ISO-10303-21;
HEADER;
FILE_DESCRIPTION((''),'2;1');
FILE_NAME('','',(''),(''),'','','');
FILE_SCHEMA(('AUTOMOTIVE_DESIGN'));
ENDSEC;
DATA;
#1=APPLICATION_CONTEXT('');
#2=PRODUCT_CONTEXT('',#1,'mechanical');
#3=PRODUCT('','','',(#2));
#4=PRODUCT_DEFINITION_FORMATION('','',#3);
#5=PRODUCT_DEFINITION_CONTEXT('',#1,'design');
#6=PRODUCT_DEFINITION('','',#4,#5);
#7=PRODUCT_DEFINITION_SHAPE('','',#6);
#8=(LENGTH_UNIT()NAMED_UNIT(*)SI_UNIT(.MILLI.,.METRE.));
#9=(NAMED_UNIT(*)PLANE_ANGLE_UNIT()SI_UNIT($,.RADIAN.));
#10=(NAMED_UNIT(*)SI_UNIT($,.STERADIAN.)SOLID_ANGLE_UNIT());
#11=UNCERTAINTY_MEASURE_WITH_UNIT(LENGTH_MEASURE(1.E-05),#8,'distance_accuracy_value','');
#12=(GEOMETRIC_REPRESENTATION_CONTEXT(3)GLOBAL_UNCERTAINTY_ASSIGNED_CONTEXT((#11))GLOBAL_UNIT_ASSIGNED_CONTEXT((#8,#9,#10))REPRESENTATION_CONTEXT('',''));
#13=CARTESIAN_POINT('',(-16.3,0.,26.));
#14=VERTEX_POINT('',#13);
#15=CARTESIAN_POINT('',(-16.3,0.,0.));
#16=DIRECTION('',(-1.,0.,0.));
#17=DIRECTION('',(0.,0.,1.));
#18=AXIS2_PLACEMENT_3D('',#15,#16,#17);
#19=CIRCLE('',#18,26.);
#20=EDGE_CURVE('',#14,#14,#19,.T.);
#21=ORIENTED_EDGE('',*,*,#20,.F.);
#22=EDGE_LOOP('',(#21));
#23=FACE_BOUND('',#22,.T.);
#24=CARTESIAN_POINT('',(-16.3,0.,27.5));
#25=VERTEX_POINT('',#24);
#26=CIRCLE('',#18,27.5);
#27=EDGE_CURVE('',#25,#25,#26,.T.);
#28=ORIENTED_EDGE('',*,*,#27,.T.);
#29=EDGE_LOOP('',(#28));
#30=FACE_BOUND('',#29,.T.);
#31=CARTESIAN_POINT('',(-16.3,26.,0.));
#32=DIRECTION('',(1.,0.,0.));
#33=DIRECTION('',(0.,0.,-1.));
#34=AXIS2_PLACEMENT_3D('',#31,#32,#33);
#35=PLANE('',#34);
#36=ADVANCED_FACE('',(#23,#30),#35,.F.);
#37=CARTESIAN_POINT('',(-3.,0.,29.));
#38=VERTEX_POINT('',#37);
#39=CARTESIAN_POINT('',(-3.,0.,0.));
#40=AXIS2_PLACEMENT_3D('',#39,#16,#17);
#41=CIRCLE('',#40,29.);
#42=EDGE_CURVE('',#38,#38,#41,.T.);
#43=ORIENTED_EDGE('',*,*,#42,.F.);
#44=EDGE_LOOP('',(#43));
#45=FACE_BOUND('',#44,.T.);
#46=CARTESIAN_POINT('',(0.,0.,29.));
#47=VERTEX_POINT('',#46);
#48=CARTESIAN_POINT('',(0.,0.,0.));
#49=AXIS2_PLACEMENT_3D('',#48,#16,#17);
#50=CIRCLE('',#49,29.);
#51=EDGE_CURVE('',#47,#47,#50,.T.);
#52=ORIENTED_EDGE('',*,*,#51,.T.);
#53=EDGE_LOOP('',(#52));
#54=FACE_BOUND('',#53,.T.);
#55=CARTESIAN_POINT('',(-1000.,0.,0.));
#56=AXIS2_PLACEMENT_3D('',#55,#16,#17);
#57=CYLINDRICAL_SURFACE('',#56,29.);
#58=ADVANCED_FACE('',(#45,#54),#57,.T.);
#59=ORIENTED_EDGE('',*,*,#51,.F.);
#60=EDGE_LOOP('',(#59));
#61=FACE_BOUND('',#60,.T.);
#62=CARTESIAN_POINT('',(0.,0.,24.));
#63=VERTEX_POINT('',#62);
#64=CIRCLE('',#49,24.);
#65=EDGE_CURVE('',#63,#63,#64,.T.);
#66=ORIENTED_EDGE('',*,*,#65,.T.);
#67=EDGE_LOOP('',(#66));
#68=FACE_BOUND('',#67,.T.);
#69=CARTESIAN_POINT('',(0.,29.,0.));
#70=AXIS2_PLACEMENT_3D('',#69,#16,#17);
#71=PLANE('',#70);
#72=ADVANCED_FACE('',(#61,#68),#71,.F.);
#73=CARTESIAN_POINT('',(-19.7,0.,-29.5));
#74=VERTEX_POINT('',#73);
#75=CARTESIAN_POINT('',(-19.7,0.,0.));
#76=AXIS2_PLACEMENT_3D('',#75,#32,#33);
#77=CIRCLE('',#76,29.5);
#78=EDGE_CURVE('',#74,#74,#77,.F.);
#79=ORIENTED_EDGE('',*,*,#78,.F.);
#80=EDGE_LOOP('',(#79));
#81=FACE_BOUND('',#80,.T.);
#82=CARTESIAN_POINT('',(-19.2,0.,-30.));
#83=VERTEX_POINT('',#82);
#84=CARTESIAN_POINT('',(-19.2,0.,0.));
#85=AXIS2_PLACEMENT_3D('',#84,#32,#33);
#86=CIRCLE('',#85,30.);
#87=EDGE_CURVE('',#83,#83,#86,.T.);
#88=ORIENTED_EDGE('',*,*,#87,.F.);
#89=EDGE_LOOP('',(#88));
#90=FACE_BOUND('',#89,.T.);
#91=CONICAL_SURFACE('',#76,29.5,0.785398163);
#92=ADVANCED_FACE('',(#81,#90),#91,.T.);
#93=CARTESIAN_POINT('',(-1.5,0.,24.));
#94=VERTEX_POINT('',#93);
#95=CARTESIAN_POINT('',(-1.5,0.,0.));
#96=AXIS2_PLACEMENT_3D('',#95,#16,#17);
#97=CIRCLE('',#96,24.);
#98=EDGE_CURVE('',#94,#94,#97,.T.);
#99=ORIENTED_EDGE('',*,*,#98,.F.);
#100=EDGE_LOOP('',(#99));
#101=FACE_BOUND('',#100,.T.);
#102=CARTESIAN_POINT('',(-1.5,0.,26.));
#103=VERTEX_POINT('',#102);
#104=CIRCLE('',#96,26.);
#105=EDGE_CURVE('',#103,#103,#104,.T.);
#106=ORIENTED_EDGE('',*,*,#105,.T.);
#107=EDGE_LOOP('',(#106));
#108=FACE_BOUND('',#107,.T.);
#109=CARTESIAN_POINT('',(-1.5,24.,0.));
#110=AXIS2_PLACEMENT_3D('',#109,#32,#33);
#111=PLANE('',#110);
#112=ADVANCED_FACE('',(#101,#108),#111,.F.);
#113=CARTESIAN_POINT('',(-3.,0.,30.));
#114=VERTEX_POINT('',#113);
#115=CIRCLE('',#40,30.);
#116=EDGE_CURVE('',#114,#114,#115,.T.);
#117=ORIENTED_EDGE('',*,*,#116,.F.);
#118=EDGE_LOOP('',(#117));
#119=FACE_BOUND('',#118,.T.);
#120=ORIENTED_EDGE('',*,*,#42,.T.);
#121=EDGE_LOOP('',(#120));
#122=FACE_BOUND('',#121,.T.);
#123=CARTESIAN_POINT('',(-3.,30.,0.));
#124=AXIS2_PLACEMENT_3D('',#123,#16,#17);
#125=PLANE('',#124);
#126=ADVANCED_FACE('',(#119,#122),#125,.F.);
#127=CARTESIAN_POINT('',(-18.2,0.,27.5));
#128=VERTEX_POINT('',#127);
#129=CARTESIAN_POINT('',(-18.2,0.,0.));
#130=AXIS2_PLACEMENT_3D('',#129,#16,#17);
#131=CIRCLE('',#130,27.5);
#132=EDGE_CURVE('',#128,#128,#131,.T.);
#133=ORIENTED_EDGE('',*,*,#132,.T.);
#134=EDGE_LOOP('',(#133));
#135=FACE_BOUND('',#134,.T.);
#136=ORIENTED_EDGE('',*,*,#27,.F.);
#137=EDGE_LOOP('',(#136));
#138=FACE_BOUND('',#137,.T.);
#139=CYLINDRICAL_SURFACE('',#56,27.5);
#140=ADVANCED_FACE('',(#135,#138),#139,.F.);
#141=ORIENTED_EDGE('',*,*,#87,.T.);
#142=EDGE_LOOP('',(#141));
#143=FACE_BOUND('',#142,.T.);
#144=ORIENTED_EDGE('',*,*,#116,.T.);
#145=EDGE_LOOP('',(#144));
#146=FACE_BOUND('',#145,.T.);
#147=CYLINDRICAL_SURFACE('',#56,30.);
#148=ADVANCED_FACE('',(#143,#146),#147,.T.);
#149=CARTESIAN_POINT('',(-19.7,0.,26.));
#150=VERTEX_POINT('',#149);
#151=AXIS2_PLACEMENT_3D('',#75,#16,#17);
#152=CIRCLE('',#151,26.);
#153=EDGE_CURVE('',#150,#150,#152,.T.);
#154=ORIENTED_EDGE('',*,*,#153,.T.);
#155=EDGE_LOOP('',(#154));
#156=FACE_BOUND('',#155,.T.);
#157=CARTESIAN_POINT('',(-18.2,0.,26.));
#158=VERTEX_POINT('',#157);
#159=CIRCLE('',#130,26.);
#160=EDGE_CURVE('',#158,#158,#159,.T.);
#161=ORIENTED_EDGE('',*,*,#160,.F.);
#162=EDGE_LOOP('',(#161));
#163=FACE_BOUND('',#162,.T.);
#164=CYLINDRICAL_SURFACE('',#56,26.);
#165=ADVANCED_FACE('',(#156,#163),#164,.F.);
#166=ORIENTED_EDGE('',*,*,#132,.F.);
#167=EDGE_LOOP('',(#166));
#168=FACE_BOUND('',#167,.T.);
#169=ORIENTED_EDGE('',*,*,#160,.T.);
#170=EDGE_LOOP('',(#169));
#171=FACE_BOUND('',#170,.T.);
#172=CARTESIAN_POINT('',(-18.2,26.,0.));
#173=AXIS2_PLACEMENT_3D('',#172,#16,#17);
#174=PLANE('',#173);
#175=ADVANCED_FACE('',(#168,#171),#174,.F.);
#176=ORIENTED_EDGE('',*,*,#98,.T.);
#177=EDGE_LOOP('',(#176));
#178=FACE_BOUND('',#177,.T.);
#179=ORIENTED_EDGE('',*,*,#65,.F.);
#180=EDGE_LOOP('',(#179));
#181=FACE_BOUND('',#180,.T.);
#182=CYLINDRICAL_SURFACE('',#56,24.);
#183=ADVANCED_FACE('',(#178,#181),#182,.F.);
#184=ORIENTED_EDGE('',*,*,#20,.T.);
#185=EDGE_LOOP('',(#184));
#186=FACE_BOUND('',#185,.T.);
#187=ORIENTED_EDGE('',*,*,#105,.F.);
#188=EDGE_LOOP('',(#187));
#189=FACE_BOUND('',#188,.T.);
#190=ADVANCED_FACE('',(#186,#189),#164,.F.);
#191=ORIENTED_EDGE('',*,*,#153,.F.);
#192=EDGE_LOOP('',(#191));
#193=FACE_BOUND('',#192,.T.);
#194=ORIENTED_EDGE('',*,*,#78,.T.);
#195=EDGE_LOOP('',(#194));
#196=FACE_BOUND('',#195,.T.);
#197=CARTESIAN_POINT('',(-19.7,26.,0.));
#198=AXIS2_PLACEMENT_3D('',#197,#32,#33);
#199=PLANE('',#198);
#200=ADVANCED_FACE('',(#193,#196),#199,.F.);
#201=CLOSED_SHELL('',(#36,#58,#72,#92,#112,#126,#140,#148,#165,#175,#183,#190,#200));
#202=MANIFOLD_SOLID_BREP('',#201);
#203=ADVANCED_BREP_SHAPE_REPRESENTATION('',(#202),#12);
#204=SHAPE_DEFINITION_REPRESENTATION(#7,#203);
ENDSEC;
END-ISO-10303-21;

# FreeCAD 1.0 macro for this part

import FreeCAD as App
import Part
import Sketcher
Q = App.Units.Quantity


def edges_at(feature, points):
    """Names of the edges that pass closest to the given points."""
    edges = feature.Shape.Edges
    near = lambda p: min(range(len(edges)), key=lambda i: edges[i].distToShape(Part.Vertex(*p))[0])
    return sorted({f"Edge{near(p) + 1}" for p in points})

doc = App.newDocument("Part")
params = doc.addObject("Spreadsheet::Sheet", "Params")
for row, (alias, value) in enumerate([
    ("sketch1_width", "3 mm"),
    ("sketch1_height", "5 mm"),
    ("sketch1_height2", "1 mm"),
    ("sketch1_height3", "4 mm"),
    ("sketch1_width2", "1.5 mm"),
    ("revolution_angle", "360 deg"),
    ("chamfer_size", "0.5 mm"),
], start=1):
    params.set(f"A{row}", alias)
    params.set(f"B{row}", "=" + value)
    params.setAlias(f"B{row}", alias)

body = doc.addObject("PartDesign::Body", "Body")

# Sketch on XY plane
sketch1 = doc.addObject("Sketcher::SketchObject", "Sketch")
body.addObject(sketch1)
sketch1.AttachmentSupport = (doc.XY_Plane, [""])
sketch1.MapMode = "FlatFace"
sketch1.addGeometry(Part.LineSegment(App.Vector(-1.5, 24, 0), App.Vector(0, 24, 0)), False)
sketch1.addGeometry(Part.LineSegment(App.Vector(0, 24, 0), App.Vector(0, 29, 0)), False)
sketch1.addGeometry(Part.LineSegment(App.Vector(0, 29, 0), App.Vector(-3, 29, 0)), False)
sketch1.addGeometry(Part.LineSegment(App.Vector(-3, 29, 0), App.Vector(-3, 30, 0)), False)
sketch1.addGeometry(Part.LineSegment(App.Vector(-3, 30, 0), App.Vector(-19.7, 30, 0)), False)
sketch1.addGeometry(Part.LineSegment(App.Vector(-19.7, 30, 0), App.Vector(-19.7, 26, 0)), False)
sketch1.addGeometry(Part.LineSegment(App.Vector(-19.7, 26, 0), App.Vector(-18.2, 26, 0)), False)
sketch1.addGeometry(Part.LineSegment(App.Vector(-18.2, 26, 0), App.Vector(-18.2, 27.5, 0)), False)
sketch1.addGeometry(Part.LineSegment(App.Vector(-18.2, 27.5, 0), App.Vector(-16.3, 27.5, 0)), False)
sketch1.addGeometry(Part.LineSegment(App.Vector(-16.3, 27.5, 0), App.Vector(-16.3, 26, 0)), False)
sketch1.addGeometry(Part.LineSegment(App.Vector(-16.3, 26, 0), App.Vector(-1.5, 26, 0)), False)
sketch1.addGeometry(Part.LineSegment(App.Vector(-1.5, 26, 0), App.Vector(-1.5, 24, 0)), False)
sketch1.addConstraint(Sketcher.Constraint("Coincident", 0, 2, 1, 1))
sketch1.addConstraint(Sketcher.Constraint("Coincident", 1, 2, 2, 1))
sketch1.addConstraint(Sketcher.Constraint("Coincident", 2, 2, 3, 1))
sketch1.addConstraint(Sketcher.Constraint("Coincident", 3, 2, 4, 1))
sketch1.addConstraint(Sketcher.Constraint("Coincident", 4, 2, 5, 1))
sketch1.addConstraint(Sketcher.Constraint("Coincident", 5, 2, 6, 1))
sketch1.addConstraint(Sketcher.Constraint("Coincident", 6, 2, 7, 1))
sketch1.addConstraint(Sketcher.Constraint("Coincident", 7, 2, 8, 1))
sketch1.addConstraint(Sketcher.Constraint("Coincident", 8, 2, 9, 1))
sketch1.addConstraint(Sketcher.Constraint("Coincident", 9, 2, 10, 1))
sketch1.addConstraint(Sketcher.Constraint("Coincident", 10, 2, 11, 1))
sketch1.addConstraint(Sketcher.Constraint("Coincident", 11, 2, 0, 1))
sketch1.addConstraint(Sketcher.Constraint("Horizontal", 0))
sketch1.addConstraint(Sketcher.Constraint("Vertical", 1))
sketch1.addConstraint(Sketcher.Constraint("Horizontal", 2))
sketch1.addConstraint(Sketcher.Constraint("Vertical", 3))
sketch1.addConstraint(Sketcher.Constraint("Horizontal", 4))
sketch1.addConstraint(Sketcher.Constraint("Vertical", 5))
sketch1.addConstraint(Sketcher.Constraint("Horizontal", 6))
sketch1.addConstraint(Sketcher.Constraint("Vertical", 7))
sketch1.addConstraint(Sketcher.Constraint("Horizontal", 8))
sketch1.addConstraint(Sketcher.Constraint("Vertical", 9))
sketch1.addConstraint(Sketcher.Constraint("Horizontal", 10))
sketch1.addConstraint(Sketcher.Constraint("Vertical", 11))
sketch1.addConstraint(Sketcher.Constraint("PointOnObject", 0, 2, -2))
sketch1.addConstraint(Sketcher.Constraint("Horizontal", 6, 2, 9, 2))
sketch1.addConstraint(Sketcher.Constraint("Equal", 0, 6))
sketch1.addConstraint(Sketcher.Constraint("Equal", 6, 7))
sketch1.addConstraint(Sketcher.Constraint("DistanceX", 2, 2, 2, 1, Q("3 mm")))
sketch1.addConstraint(Sketcher.Constraint("DistanceY", 1, 1, 1, 2, Q("5 mm")))
sketch1.addConstraint(Sketcher.Constraint("DistanceY", 3, 1, 3, 2, Q("1 mm")))
sketch1.addConstraint(Sketcher.Constraint("DistanceY", 5, 2, 5, 1, Q("4 mm")))
sketch1.addConstraint(Sketcher.Constraint("DistanceX", 0, 1, 0, 2, Q("1.5 mm")))
sketch1.addConstraint(Sketcher.Constraint("DistanceX", 4, 2, 4, 1, Q("16.7 mm")))
sketch1.addConstraint(Sketcher.Constraint("DistanceX", 8, 1, 8, 2, Q("1.9 mm")))
sketch1.addConstraint(Sketcher.Constraint("DistanceY", -1, 1, 0, 2, Q("24 mm")))
sketch1.setExpression("Constraints[28]", "Params.sketch1_width")
sketch1.setExpression("Constraints[29]", "Params.sketch1_height")
sketch1.setExpression("Constraints[30]", "Params.sketch1_height2")
sketch1.setExpression("Constraints[31]", "Params.sketch1_height3")
sketch1.setExpression("Constraints[32]", "Params.sketch1_width2")
revolution = doc.addObject("PartDesign::Revolution", "Revolution")
body.addObject(revolution)
revolution.Profile = sketch1
revolution.ReferenceAxis = (sketch1, ["H_Axis"])
revolution.setExpression("Angle", "Params.revolution_angle")
doc.recompute()

chamfer = doc.addObject("PartDesign::Chamfer", "Chamfer")
body.addObject(chamfer)
chamfer.Base = (revolution, edges_at(revolution, [(-19.7, -30, 0)]))
chamfer.setExpression("Size", "Params.chamfer_size")

doc.recompute()
